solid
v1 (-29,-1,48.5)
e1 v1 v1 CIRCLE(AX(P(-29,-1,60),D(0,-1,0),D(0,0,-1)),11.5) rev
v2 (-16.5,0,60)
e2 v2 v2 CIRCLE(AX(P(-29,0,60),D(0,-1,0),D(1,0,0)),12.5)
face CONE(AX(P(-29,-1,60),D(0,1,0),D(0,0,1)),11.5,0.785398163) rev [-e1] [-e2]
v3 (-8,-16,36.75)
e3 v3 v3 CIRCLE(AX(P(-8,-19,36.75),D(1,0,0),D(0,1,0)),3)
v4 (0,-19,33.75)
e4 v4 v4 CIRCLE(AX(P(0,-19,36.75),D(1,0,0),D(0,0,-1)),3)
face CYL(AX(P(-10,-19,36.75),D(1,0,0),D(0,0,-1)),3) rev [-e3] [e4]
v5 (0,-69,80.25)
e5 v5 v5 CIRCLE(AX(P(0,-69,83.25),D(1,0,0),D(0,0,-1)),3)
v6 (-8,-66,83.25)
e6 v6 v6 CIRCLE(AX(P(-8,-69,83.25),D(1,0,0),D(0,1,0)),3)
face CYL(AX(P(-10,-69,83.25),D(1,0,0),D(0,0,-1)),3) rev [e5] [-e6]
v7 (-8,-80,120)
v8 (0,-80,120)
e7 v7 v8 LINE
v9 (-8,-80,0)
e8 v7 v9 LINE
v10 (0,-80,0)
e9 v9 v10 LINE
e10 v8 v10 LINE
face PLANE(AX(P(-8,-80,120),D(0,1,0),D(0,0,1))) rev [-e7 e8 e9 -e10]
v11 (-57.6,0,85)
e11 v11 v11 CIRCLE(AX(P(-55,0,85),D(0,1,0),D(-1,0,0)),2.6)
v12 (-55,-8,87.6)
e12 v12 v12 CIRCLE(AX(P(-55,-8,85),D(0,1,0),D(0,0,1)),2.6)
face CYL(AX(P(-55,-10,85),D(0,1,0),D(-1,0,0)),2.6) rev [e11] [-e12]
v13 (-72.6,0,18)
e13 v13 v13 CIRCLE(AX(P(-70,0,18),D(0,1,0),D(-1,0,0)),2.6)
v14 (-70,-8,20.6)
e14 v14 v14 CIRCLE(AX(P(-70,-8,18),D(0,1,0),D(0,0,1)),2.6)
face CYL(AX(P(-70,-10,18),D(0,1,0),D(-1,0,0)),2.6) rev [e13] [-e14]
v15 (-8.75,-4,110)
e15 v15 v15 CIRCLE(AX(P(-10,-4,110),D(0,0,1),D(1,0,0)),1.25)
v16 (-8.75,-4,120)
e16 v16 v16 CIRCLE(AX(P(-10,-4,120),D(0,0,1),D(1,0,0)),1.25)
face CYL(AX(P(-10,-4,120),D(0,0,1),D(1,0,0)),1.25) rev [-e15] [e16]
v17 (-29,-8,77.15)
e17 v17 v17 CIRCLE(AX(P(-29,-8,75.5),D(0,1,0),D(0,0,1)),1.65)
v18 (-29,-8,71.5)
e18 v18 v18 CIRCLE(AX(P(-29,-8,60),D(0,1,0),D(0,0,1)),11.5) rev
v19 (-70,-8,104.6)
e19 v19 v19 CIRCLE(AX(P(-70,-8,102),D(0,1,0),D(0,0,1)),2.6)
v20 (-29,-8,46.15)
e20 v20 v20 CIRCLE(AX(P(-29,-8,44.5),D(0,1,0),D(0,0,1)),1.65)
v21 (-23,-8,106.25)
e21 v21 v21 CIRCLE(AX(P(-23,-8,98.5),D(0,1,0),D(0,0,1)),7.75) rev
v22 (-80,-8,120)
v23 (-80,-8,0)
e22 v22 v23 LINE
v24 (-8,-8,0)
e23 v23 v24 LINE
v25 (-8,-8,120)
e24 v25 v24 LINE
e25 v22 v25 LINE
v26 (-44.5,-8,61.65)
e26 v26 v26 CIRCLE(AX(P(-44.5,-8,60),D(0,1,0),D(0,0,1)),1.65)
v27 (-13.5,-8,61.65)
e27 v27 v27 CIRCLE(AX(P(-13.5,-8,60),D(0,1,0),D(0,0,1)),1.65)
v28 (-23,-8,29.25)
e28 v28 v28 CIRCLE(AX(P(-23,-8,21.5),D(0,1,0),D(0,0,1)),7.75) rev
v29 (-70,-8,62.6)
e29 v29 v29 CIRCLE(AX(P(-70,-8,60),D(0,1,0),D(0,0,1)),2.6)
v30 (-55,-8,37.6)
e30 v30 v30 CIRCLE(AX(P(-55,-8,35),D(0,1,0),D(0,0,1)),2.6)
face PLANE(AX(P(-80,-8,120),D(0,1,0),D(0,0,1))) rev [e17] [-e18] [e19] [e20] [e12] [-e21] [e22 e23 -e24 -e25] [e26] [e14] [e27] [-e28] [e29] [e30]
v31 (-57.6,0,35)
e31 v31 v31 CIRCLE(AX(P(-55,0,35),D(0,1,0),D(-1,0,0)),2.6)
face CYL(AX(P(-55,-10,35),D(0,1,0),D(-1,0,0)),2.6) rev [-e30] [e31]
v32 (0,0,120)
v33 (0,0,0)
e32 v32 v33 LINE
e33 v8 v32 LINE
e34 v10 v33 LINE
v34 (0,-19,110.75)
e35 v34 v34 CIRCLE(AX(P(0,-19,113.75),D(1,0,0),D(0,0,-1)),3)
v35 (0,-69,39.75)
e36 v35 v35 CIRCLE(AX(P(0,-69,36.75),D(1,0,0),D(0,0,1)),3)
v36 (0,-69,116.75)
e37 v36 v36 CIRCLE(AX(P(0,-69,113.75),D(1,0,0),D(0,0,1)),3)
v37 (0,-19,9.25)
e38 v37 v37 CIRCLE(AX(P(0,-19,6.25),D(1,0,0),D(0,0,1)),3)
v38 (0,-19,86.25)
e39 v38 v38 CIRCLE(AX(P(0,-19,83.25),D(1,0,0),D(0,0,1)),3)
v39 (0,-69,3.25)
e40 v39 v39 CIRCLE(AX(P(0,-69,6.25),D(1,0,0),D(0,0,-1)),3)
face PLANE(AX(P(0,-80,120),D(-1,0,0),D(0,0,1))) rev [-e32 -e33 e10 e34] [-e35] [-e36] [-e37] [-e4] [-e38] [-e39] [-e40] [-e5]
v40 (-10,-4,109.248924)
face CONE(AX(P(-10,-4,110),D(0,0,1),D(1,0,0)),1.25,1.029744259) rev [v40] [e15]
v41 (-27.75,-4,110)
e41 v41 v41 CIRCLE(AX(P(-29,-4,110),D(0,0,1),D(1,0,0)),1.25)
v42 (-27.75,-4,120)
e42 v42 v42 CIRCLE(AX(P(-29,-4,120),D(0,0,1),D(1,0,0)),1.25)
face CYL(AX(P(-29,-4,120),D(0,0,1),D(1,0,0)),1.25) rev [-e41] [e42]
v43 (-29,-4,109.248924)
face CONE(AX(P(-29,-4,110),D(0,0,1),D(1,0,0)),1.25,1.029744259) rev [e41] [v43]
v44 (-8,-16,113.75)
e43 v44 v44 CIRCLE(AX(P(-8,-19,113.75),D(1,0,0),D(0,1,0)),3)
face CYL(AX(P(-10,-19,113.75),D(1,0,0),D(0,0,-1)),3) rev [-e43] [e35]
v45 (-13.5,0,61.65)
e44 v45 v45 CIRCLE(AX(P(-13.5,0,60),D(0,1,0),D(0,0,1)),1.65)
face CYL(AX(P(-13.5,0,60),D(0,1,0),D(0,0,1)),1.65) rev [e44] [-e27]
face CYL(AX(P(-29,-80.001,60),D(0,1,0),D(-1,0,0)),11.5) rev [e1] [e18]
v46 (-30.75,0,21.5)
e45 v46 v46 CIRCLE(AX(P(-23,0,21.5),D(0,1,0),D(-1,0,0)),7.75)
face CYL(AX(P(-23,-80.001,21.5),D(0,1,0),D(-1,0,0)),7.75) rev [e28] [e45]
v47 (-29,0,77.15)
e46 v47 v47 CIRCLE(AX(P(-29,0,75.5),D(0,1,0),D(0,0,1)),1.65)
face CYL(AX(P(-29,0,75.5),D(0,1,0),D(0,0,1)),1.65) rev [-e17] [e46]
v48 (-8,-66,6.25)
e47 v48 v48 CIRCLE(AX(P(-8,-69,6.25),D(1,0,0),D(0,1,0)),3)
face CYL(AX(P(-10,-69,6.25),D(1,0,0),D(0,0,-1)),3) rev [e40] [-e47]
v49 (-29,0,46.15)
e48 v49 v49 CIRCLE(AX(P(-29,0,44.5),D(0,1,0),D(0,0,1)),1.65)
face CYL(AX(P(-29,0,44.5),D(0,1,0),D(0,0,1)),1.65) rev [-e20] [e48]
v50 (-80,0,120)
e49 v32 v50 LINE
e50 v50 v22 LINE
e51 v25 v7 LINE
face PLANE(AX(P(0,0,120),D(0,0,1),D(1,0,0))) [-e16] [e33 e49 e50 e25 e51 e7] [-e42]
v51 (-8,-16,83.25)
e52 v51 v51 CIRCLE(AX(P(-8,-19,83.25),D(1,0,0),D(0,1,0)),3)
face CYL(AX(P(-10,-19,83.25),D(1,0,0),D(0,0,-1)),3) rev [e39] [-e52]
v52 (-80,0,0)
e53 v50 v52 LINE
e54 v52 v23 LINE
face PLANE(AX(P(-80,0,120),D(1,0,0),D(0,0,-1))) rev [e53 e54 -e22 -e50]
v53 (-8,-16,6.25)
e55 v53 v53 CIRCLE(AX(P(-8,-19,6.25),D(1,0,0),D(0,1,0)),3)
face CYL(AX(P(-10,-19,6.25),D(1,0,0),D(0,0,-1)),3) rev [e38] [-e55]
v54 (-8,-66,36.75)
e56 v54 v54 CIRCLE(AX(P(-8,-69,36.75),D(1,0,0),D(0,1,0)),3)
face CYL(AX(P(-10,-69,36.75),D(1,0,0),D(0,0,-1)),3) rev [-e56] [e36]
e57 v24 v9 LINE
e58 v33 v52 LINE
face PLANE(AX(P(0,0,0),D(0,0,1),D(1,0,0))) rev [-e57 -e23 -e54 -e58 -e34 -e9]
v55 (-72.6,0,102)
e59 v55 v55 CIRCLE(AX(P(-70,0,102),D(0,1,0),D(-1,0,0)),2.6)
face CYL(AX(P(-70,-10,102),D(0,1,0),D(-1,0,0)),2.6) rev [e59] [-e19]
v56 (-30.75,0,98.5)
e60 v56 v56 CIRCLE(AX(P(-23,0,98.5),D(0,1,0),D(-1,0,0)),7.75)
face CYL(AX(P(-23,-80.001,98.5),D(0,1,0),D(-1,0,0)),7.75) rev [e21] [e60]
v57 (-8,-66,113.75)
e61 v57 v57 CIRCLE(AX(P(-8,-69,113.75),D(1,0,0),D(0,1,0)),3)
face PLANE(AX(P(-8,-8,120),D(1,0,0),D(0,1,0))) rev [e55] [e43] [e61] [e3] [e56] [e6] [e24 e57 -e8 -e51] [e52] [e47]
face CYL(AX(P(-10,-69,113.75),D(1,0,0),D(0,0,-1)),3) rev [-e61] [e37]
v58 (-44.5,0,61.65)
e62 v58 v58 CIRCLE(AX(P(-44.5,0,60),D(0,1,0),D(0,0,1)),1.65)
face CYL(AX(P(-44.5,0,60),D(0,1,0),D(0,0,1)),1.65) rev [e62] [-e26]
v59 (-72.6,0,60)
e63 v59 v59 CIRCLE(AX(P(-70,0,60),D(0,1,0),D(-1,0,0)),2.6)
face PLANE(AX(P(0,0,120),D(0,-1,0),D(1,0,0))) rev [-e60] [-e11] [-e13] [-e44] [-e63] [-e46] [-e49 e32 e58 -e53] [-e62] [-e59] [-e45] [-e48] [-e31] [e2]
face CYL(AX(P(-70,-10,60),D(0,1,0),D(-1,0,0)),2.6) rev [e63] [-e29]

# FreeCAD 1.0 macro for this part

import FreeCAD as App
import Part
import Sketcher


def edges_at(feature, points):
    """Names of the edges that pass closest to the given points."""
    edges = feature.Shape.Edges
    near = lambda p: min(range(len(edges)), key=lambda i: edges[i].distToShape(Part.Vertex(*p))[0])
    return sorted({f"Edge{near(p) + 1}" for p in points})


def add_polygon(sketch, points):
    """Adds a closed chain of lines whose ends are joined by coincident constraints."""
    first, n = sketch.GeometryCount, len(points)
    for a, b in zip(points, points[1:] + points[:1]):
        sketch.addGeometry(Part.LineSegment(App.Vector(*a, 0), App.Vector(*b, 0)), False)
    for i in range(n):
        sketch.addConstraint(Sketcher.Constraint("Coincident", first + i, 2, first + (i + 1) % n, 1))

doc = App.newDocument("Part")
body = doc.addObject("PartDesign::Body", "Body")

# Sketch on XY plane
sketch1 = body.newObject("Sketcher::SketchObject", "Sketch")
sketch1.AttachmentSupport = (doc.getObject("XY_Plane"), [""])
sketch1.MapMode = "FlatFace"
add_polygon(sketch1, [(0, 0), (-80, 0), (-80, -8), (-8, -8), (-8, -80), (0, -80)])  # lines 0-5
sketch1.addConstraint(Sketcher.Constraint("Horizontal", 0))
sketch1.addConstraint(Sketcher.Constraint("Vertical", 1))
sketch1.addConstraint(Sketcher.Constraint("Horizontal", 2))
sketch1.addConstraint(Sketcher.Constraint("Vertical", 3))
sketch1.addConstraint(Sketcher.Constraint("Horizontal", 4))
sketch1.addConstraint(Sketcher.Constraint("Vertical", 5))
sketch1.addConstraint(Sketcher.Constraint("Coincident", 5, 2, -1, 1))
sketch1.addConstraint(Sketcher.Constraint("Equal", 4, 1))
sketch1.addConstraint(Sketcher.Constraint("Equal", 2, 3))
sketch1.addConstraint(Sketcher.Constraint("DistanceX", 0, 2, 0, 1, 80.0))
sketch1.addConstraint(Sketcher.Constraint("DistanceX", 2, 1, 2, 2, 72.0))
pad1 = body.newObject("PartDesign::Pad", "Pad")
pad1.Profile = sketch1
pad1.Length = 120

# Sketch on XZ plane
sketch2 = body.newObject("Sketcher::SketchObject", "Sketch001")
sketch2.AttachmentSupport = (doc.getObject("XZ_Plane"), [""])
sketch2.MapMode = "FlatFace"
sketch2.addGeometry(Part.Circle(App.Vector(-23, 22, 0), App.Vector(0, 0, 1), 8), False)
sketch2.addConstraint(Sketcher.Constraint("Diameter", 0, 15.5))
sketch2.addConstraint(Sketcher.Constraint("DistanceX", 0, 3, -1, 1, 23.0))
sketch2.addConstraint(Sketcher.Constraint("DistanceY", -1, 1, 0, 3, 21.5))
pocket1 = body.newObject("PartDesign::Pocket", "Pocket")
pocket1.Profile = sketch2
pocket1.Type = "UpToFirst"
pocket1.Reversed = True

# Sketch on XZ plane
sketch3 = body.newObject("Sketcher::SketchObject", "Sketch002")
sketch3.AttachmentSupport = (doc.getObject("XZ_Plane"), [""])
sketch3.MapMode = "FlatFace"
sketch3.addGeometry(Part.Circle(App.Vector(-23, 98, 0), App.Vector(0, 0, 1), 8), False)
sketch3.addConstraint(Sketcher.Constraint("Diameter", 0, 15.5))
sketch3.addConstraint(Sketcher.Constraint("DistanceX", 0, 3, -1, 1, 23.0))
sketch3.addConstraint(Sketcher.Constraint("DistanceY", -1, 1, 0, 3, 98.5))
pocket2 = body.newObject("PartDesign::Pocket", "Pocket001")
pocket2.Profile = sketch3
pocket2.Type = "UpToFirst"
pocket2.Reversed = True

# Sketch on XZ plane
sketch4 = body.newObject("Sketcher::SketchObject", "Sketch003")
sketch4.AttachmentSupport = (doc.getObject("XZ_Plane"), [""])
sketch4.MapMode = "FlatFace"
sketch4.addGeometry(Part.Circle(App.Vector(-29, 60, 0), App.Vector(0, 0, 1), 12), False)
sketch4.addConstraint(Sketcher.Constraint("Diameter", 0, 23.0))
sketch4.addConstraint(Sketcher.Constraint("DistanceX", 0, 3, -1, 1, 29.0))
sketch4.addConstraint(Sketcher.Constraint("DistanceY", -1, 1, 0, 3, 60.0))
pocket3 = body.newObject("PartDesign::Pocket", "Pocket002")
pocket3.Profile = sketch4
pocket3.Type = "UpToFirst"
pocket3.Reversed = True

# Sketch on XZ plane
sketch5 = body.newObject("Sketcher::SketchObject", "Sketch004")
sketch5.AttachmentSupport = (doc.getObject("XZ_Plane"), [""])
sketch5.MapMode = "FlatFace"
sketch5.addGeometry(Part.Circle(App.Vector(-29, 44.5, 0), App.Vector(0, 0, 1), 1.6), False)
sketch5.addGeometry(Part.Circle(App.Vector(-44.5, 60, 0), App.Vector(0, 0, 1), 1.6), False)
sketch5.addGeometry(Part.Circle(App.Vector(-29, 75.5, 0), App.Vector(0, 0, 1), 1.6), False)
sketch5.addGeometry(Part.Circle(App.Vector(-13.5, 60, 0), App.Vector(0, 0, 1), 1.6), False)
sketch5.addGeometry(Part.Circle(App.Vector(-29, 60, 0), App.Vector(0, 0, 1), 1.6), False)
sketch5.addConstraint(Sketcher.Constraint("Equal", 0, 1))
sketch5.addConstraint(Sketcher.Constraint("Equal", 1, 2))
sketch5.addConstraint(Sketcher.Constraint("Equal", 2, 3))
sketch5.addConstraint(Sketcher.Constraint("Equal", 3, 4))
sketch5.addConstraint(Sketcher.Constraint("Horizontal", 1, 3, 3, 3))
sketch5.addConstraint(Sketcher.Constraint("Horizontal", 3, 3, 4, 3))
sketch5.addConstraint(Sketcher.Constraint("Vertical", 0, 3, 2, 3))
sketch5.addConstraint(Sketcher.Constraint("Vertical", 2, 3, 4, 3))
sketch5.addConstraint(Sketcher.Constraint("Diameter", 0, 3.3))
sketch5.addConstraint(Sketcher.Constraint("DistanceX", 0, 3, -1, 1, 29.0))
sketch5.addConstraint(Sketcher.Constraint("DistanceY", -1, 1, 1, 3, 60.0))
sketch5.addConstraint(Sketcher.Constraint("DistanceY", 0, 3, 2, 3, 31.0))
sketch5.addConstraint(Sketcher.Constraint("DistanceX", 1, 3, 3, 3, 31.0))
sketch5.addConstraint(Sketcher.Constraint("DistanceY", -1, 1, 0, 3, 44.5))
sketch5.addConstraint(Sketcher.Constraint("DistanceX", 1, 3, -1, 1, 44.5))
doc.recompute()
hole = body.newObject("PartDesign::Hole", "Hole")
hole.Profile = sketch5
hole.ThreadType = "None"
hole.Diameter = 3.3
hole.DepthType = "ThroughAll"
hole.Reversed = True

# Sketch on YZ plane
sketch6 = body.newObject("Sketcher::SketchObject", "Sketch005")
sketch6.AttachmentSupport = (doc.getObject("YZ_Plane"), [""])
sketch6.MapMode = "FlatFace"
sketch6.addGeometry(Part.Circle(App.Vector(-19, 113.8, 0), App.Vector(0, 0, 1), 3), False)
sketch6.addGeometry(Part.Circle(App.Vector(-19, 83.2, 0), App.Vector(0, 0, 1), 3), False)
sketch6.addGeometry(Part.Circle(App.Vector(-19, 36.8, 0), App.Vector(0, 0, 1), 3), False)
sketch6.addGeometry(Part.Circle(App.Vector(-19, 6.2, 0), App.Vector(0, 0, 1), 3), False)
sketch6.addGeometry(Part.Circle(App.Vector(-69, 83.2, 0), App.Vector(0, 0, 1), 3), False)
sketch6.addGeometry(Part.Circle(App.Vector(-69, 113.8, 0), App.Vector(0, 0, 1), 3), False)
sketch6.addGeometry(Part.Circle(App.Vector(-69, 6.2, 0), App.Vector(0, 0, 1), 3), False)
sketch6.addGeometry(Part.Circle(App.Vector(-69, 36.8, 0), App.Vector(0, 0, 1), 3), False)
sketch6.addConstraint(Sketcher.Constraint("Equal", 0, 1))
sketch6.addConstraint(Sketcher.Constraint("Equal", 1, 2))
sketch6.addConstraint(Sketcher.Constraint("Equal", 2, 3))
sketch6.addConstraint(Sketcher.Constraint("Equal", 3, 4))
sketch6.addConstraint(Sketcher.Constraint("Equal", 4, 5))
sketch6.addConstraint(Sketcher.Constraint("Equal", 5, 6))
sketch6.addConstraint(Sketcher.Constraint("Equal", 6, 7))
sketch6.addConstraint(Sketcher.Constraint("Horizontal", 1, 3, 4, 3))
sketch6.addConstraint(Sketcher.Constraint("Horizontal", 0, 3, 5, 3))
sketch6.addConstraint(Sketcher.Constraint("Horizontal", 3, 3, 6, 3))
sketch6.addConstraint(Sketcher.Constraint("Horizontal", 2, 3, 7, 3))
sketch6.addConstraint(Sketcher.Constraint("Vertical", 0, 3, 1, 3))
sketch6.addConstraint(Sketcher.Constraint("Vertical", 1, 3, 2, 3))
sketch6.addConstraint(Sketcher.Constraint("Vertical", 2, 3, 3, 3))
sketch6.addConstraint(Sketcher.Constraint("Vertical", 4, 3, 5, 3))
sketch6.addConstraint(Sketcher.Constraint("Vertical", 5, 3, 6, 3))
sketch6.addConstraint(Sketcher.Constraint("Vertical", 6, 3, 7, 3))
sketch6.addConstraint(Sketcher.Constraint("Diameter", 0, 6.0))
sketch6.addConstraint(Sketcher.Constraint("DistanceX", 0, 3, -1, 1, 19.0))
sketch6.addConstraint(Sketcher.Constraint("DistanceX", 4, 3, -1, 1, 69.0))
sketch6.addConstraint(Sketcher.Constraint("DistanceY", 2, 3, 0, 3, 77.0))
sketch6.addConstraint(Sketcher.Constraint("DistanceY", 3, 3, 1, 3, 77.0))
sketch6.addConstraint(Sketcher.Constraint("DistanceY", 1, 3, 0, 3, 30.5))
sketch6.addConstraint(Sketcher.Constraint("DistanceY", -1, 1, 0, 3, 113.75))
pocket4 = body.newObject("PartDesign::Pocket", "Pocket003")
pocket4.Profile = sketch6
pocket4.Length = 10

# Sketch on XZ plane
sketch7 = body.newObject("Sketcher::SketchObject", "Sketch006")
sketch7.AttachmentSupport = (doc.getObject("XZ_Plane"), [""])
sketch7.MapMode = "FlatFace"
sketch7.addGeometry(Part.Circle(App.Vector(-70, 18, 0), App.Vector(0, 0, 1), 2.6), False)
sketch7.addGeometry(Part.Circle(App.Vector(-70, 60, 0), App.Vector(0, 0, 1), 2.6), False)
sketch7.addGeometry(Part.Circle(App.Vector(-70, 102, 0), App.Vector(0, 0, 1), 2.6), False)
sketch7.addGeometry(Part.Circle(App.Vector(-55, 35, 0), App.Vector(0, 0, 1), 2.6), False)
sketch7.addGeometry(Part.Circle(App.Vector(-55, 85, 0), App.Vector(0, 0, 1), 2.6), False)
sketch7.addConstraint(Sketcher.Constraint("Equal", 0, 1))
sketch7.addConstraint(Sketcher.Constraint("Equal", 1, 2))
sketch7.addConstraint(Sketcher.Constraint("Equal", 2, 3))
sketch7.addConstraint(Sketcher.Constraint("Equal", 3, 4))
sketch7.addConstraint(Sketcher.Constraint("Vertical", 0, 3, 1, 3))
sketch7.addConstraint(Sketcher.Constraint("Vertical", 1, 3, 2, 3))
sketch7.addConstraint(Sketcher.Constraint("Vertical", 3, 3, 4, 3))
sketch7.addConstraint(Sketcher.Constraint("Diameter", 0, 5.2))
sketch7.addConstraint(Sketcher.Constraint("DistanceX", 0, 3, -1, 1, 70.0))
sketch7.addConstraint(Sketcher.Constraint("DistanceY", -1, 1, 0, 3, 18.0))
sketch7.addConstraint(Sketcher.Constraint("DistanceY", -1, 1, 1, 3, 60.0))
sketch7.addConstraint(Sketcher.Constraint("DistanceY", -1, 1, 2, 3, 102.0))
sketch7.addConstraint(Sketcher.Constraint("DistanceX", 3, 3, -1, 1, 55.0))
sketch7.addConstraint(Sketcher.Constraint("DistanceY", -1, 1, 3, 3, 35.0))
sketch7.addConstraint(Sketcher.Constraint("DistanceY", -1, 1, 4, 3, 85.0))
pocket5 = body.newObject("PartDesign::Pocket", "Pocket004")
pocket5.Profile = sketch7
pocket5.Length = 10
pocket5.Reversed = True
doc.recompute()

chamfer = body.newObject("PartDesign::Chamfer", "Chamfer")
chamfer.Base = (pocket5, edges_at(pocket5, [(-40.5, 0, 60)]))
chamfer.Size = 1

# Sketch on XY plane
sketch8 = body.newObject("Sketcher::SketchObject", "Sketch007")
sketch8.AttachmentSupport = (doc.getObject("XY_Plane"), [""])
sketch8.MapMode = "FlatFace"
sketch8.AttachmentOffset = App.Placement(App.Vector(0, 0, 120), App.Rotation())
sketch8.addGeometry(Part.Circle(App.Vector(-10, -4, 0), App.Vector(0, 0, 1), 1.2), False)
sketch8.addGeometry(Part.Circle(App.Vector(-29, -4, 0), App.Vector(0, 0, 1), 1.2), False)
sketch8.addConstraint(Sketcher.Constraint("Equal", 0, 1))
sketch8.addConstraint(Sketcher.Constraint("Horizontal", 0, 3, 1, 3))
sketch8.addConstraint(Sketcher.Constraint("Diameter", 0, 2.5))
sketch8.addConstraint(Sketcher.Constraint("DistanceX", 0, 3, -1, 1, 10.0))
sketch8.addConstraint(Sketcher.Constraint("DistanceY", 0, 3, -1, 1, 4.0))
sketch8.addConstraint(Sketcher.Constraint("DistanceX", 1, 3, -1, 1, 29.0))
doc.recompute()
hole2 = body.newObject("PartDesign::Hole", "Hole001")
hole2.Profile = sketch8
hole2.ThreadType = "None"
hole2.Diameter = 2.5
hole2.DepthType = "Dimension"
hole2.Depth = 10
hole2.DrillPoint = "Angled"
hole2.DrillPointAngle = 118

doc.recompute()
